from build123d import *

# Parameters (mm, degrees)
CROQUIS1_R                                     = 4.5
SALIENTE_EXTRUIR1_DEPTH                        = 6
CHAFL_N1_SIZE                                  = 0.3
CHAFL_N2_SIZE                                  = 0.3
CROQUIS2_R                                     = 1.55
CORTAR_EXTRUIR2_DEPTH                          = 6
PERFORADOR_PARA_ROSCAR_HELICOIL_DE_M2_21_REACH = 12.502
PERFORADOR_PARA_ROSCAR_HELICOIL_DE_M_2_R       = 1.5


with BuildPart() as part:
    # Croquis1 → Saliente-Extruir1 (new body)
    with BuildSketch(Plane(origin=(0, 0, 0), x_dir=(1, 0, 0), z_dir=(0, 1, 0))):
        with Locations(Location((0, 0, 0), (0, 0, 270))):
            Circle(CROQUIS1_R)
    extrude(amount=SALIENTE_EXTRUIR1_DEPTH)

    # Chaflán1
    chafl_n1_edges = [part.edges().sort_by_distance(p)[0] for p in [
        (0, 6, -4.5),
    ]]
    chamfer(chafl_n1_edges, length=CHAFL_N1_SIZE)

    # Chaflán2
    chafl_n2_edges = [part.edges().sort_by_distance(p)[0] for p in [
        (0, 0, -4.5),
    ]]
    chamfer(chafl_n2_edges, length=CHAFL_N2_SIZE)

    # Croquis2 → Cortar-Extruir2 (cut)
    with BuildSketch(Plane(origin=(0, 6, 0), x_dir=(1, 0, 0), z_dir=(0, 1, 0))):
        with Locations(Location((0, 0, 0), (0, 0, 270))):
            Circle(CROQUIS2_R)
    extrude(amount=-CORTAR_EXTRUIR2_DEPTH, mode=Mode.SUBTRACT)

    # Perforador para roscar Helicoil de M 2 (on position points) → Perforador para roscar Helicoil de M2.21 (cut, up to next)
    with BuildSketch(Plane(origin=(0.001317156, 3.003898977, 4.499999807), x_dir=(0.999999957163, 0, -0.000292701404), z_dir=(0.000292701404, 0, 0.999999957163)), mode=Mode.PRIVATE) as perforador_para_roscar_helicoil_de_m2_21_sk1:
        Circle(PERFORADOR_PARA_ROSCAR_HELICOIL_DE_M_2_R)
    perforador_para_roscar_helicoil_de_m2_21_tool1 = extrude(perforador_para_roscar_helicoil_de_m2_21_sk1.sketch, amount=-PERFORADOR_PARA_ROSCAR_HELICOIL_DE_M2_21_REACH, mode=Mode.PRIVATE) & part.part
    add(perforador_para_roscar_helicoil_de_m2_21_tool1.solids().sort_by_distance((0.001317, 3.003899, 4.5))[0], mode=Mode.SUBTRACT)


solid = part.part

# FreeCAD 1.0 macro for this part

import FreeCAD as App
import Part
import Sketcher
from FreeCAD import Vector
Q = App.Units.Quantity


def edges_at(feature, points):
    """Names of the edges that pass closest to the given points."""
    edges = feature.Shape.Edges
    near = lambda p: min(range(len(edges)), key=lambda i: edges[i].distToShape(Part.Vertex(*p))[0])
    return sorted({f"Edge{near(p) + 1}" for p in points})

doc = App.newDocument("Part")
body = doc.addObject("PartDesign::Body", "Body")

sketch1 = body.newObject("Sketcher::SketchObject", "Sketch")
sketch1.AttachmentSupport = (doc.getObject("XZ_Plane"), [""])
sketch1.MapMode = "FlatFace"
sketch1.addGeometry(Part.Circle(Vector(0, 0, 0), Vector(0, 0, 1), 4.5), False)
sketch1.addConstraint([
    Sketcher.Constraint("Coincident", 0, 3, -1, 1),
    Sketcher.Constraint("Diameter", 0, Q("9 mm")),
])
pad1 = body.newObject("PartDesign::Pad", "Pad")
pad1.Profile = sketch1
pad1.Length = 6
pad1.Reversed = True
doc.recompute()

chamfer = body.newObject("PartDesign::Chamfer", "Chamfer")
chamfer.Base = (pad1, edges_at(pad1, [(0, 6, -4.5)]))
chamfer.Size = 0.3
doc.recompute()

chamfer2 = body.newObject("PartDesign::Chamfer", "Chamfer001")
chamfer2.Base = (chamfer, edges_at(chamfer, [(0, 0, -4.5)]))
chamfer2.Size = 0.3

sketch2 = body.newObject("Sketcher::SketchObject", "Sketch001")
sketch2.AttachmentSupport = (doc.getObject("XZ_Plane"), [""])
sketch2.MapMode = "FlatFace"
sketch2.AttachmentOffset = App.Placement(Vector(0, 0, -6), App.Rotation())
sketch2.addGeometry(Part.Circle(Vector(0, 0, 0), Vector(0, 0, 1), 1.6), False)
sketch2.addConstraint([
    Sketcher.Constraint("Coincident", 0, 3, -1, 1),
    Sketcher.Constraint("Diameter", 0, Q("3.1 mm")),
])
pocket1 = body.newObject("PartDesign::Pocket", "Pocket")
pocket1.Profile = sketch2
pocket1.Length = 6
pocket1.Reversed = True

sketch3 = body.newObject("Sketcher::SketchObject", "Sketch002")
sketch3.Placement = App.Placement(Vector(0.001317, 3.003899, 4.5), App.Rotation(Vector(0.999999957, 0, -0.000292701), Vector(0, 1, 0), Vector(0.000292701, 0, 0.999999957), "ZXY"))
sketch3.addGeometry(Part.Circle(Vector(0, 0, 0), Vector(0, 0, 1), 1.5), False)
sketch3.addConstraint([
    Sketcher.Constraint("Coincident", 0, 3, -1, 1),
    Sketcher.Constraint("Diameter", 0, Q("3 mm")),
])
pocket2 = body.newObject("PartDesign::Pocket", "Pocket001")
pocket2.Profile = sketch3
pocket2.Type = "UpToFirst"

doc.recompute()
